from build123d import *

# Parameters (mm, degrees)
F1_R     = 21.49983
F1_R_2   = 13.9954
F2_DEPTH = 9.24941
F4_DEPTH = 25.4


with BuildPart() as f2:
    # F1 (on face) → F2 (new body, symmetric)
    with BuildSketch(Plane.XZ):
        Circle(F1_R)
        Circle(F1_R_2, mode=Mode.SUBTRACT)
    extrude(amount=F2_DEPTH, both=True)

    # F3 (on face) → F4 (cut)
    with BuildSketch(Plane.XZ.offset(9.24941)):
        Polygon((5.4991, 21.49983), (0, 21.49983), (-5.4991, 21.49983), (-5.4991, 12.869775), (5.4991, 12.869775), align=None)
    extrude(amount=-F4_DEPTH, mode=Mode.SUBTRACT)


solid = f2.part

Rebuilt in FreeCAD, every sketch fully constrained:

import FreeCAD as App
import Part
import Sketcher
from FreeCAD import Vector
Q = App.Units.Quantity

doc = App.newDocument("Part")
params = doc.addObject("Spreadsheet::Sheet", "Params")
for row, (alias, value) in enumerate([
    ("sketch1_diameter", "1.102 in"),
    ("pad1_length", "0.7283 in"),
    ("sketch2_width", "0.433 in"),
    ("pocket1_length", "1 in"),
], start=1):
    params.set(f"A{row}", alias)
    params.set(f"B{row}", "=" + value)
    params.setAlias(f"B{row}", alias)

body = doc.addObject("PartDesign::Body", "Body")

# Sketch on XZ plane
sketch1 = body.newObject("Sketcher::SketchObject", "Sketch")
sketch1.AttachmentSupport = (doc.getObject("XZ_Plane"), [""])
sketch1.MapMode = "FlatFace"
sketch1.addGeometry(Part.Circle(Vector(0, 0, 0), Vector(0, 0, 1), 21), False)
sketch1.addGeometry(Part.Circle(Vector(0, 0, 0), Vector(0, 0, 1), 14), False)
sketch1.addConstraint(Sketcher.Constraint("Coincident", 0, 3, -1, 1))
sketch1.addConstraint(Sketcher.Constraint("Coincident", 1, 3, -1, 1))
sketch1.addConstraint(Sketcher.Constraint("Diameter", 1, Q("1.102 in")))
sketch1.addConstraint(Sketcher.Constraint("Diameter", 0, Q("1.6929 in")))
sketch1.setExpression("Constraints[2]", "Params.sketch1_diameter")
pad1 = body.newObject("PartDesign::Pad", "Pad")
pad1.Profile = sketch1
pad1.setExpression("Length", "Params.pad1_length")
pad1.Midplane = True

# Sketch on XZ plane
sketch2 = body.newObject("Sketcher::SketchObject", "Sketch001")
sketch2.AttachmentSupport = (doc.getObject("XZ_Plane"), [""])
sketch2.MapMode = "FlatFace"
sketch2.AttachmentOffset = App.Placement(Vector(0, 0, 9.24941), App.Rotation())
sketch2.addGeometry(Part.LineSegment(Vector(5, 21, 0), Vector(-5, 21, 0)), False)
sketch2.addGeometry(Part.LineSegment(Vector(-5, 21, 0), Vector(-5, 13, 0)), False)
sketch2.addGeometry(Part.LineSegment(Vector(-5, 13, 0), Vector(5, 13, 0)), False)
sketch2.addGeometry(Part.LineSegment(Vector(5, 13, 0), Vector(5, 21, 0)), False)
sketch2.addConstraint(Sketcher.Constraint("Coincident", 0, 2, 1, 1))
sketch2.addConstraint(Sketcher.Constraint("Coincident", 1, 2, 2, 1))
sketch2.addConstraint(Sketcher.Constraint("Coincident", 2, 2, 3, 1))
sketch2.addConstraint(Sketcher.Constraint("Coincident", 3, 2, 0, 1))
sketch2.addConstraint(Sketcher.Constraint("Horizontal", 0))
sketch2.addConstraint(Sketcher.Constraint("Vertical", 1))
sketch2.addConstraint(Sketcher.Constraint("Horizontal", 2))
sketch2.addConstraint(Sketcher.Constraint("Vertical", 3))
sketch2.addConstraint(Sketcher.Constraint("DistanceX", 0, 2, 0, 1, Q("0.433 in")))
sketch2.addConstraint(Sketcher.Constraint("DistanceX", 0, 2, -1, 1, Q("0.2165 in")))
sketch2.addConstraint(Sketcher.Constraint("DistanceY", 1, 2, 1, 1, Q("8.630055 mm")))
sketch2.addConstraint(Sketcher.Constraint("DistanceY", -1, 1, 0, 2, Q("21.49983 mm")))
sketch2.setExpression("Constraints[8]", "Params.sketch2_width")
pocket1 = body.newObject("PartDesign::Pocket", "Pocket")
pocket1.Profile = sketch2
pocket1.setExpression("Length", "Params.pocket1_length")

doc.recompute()
